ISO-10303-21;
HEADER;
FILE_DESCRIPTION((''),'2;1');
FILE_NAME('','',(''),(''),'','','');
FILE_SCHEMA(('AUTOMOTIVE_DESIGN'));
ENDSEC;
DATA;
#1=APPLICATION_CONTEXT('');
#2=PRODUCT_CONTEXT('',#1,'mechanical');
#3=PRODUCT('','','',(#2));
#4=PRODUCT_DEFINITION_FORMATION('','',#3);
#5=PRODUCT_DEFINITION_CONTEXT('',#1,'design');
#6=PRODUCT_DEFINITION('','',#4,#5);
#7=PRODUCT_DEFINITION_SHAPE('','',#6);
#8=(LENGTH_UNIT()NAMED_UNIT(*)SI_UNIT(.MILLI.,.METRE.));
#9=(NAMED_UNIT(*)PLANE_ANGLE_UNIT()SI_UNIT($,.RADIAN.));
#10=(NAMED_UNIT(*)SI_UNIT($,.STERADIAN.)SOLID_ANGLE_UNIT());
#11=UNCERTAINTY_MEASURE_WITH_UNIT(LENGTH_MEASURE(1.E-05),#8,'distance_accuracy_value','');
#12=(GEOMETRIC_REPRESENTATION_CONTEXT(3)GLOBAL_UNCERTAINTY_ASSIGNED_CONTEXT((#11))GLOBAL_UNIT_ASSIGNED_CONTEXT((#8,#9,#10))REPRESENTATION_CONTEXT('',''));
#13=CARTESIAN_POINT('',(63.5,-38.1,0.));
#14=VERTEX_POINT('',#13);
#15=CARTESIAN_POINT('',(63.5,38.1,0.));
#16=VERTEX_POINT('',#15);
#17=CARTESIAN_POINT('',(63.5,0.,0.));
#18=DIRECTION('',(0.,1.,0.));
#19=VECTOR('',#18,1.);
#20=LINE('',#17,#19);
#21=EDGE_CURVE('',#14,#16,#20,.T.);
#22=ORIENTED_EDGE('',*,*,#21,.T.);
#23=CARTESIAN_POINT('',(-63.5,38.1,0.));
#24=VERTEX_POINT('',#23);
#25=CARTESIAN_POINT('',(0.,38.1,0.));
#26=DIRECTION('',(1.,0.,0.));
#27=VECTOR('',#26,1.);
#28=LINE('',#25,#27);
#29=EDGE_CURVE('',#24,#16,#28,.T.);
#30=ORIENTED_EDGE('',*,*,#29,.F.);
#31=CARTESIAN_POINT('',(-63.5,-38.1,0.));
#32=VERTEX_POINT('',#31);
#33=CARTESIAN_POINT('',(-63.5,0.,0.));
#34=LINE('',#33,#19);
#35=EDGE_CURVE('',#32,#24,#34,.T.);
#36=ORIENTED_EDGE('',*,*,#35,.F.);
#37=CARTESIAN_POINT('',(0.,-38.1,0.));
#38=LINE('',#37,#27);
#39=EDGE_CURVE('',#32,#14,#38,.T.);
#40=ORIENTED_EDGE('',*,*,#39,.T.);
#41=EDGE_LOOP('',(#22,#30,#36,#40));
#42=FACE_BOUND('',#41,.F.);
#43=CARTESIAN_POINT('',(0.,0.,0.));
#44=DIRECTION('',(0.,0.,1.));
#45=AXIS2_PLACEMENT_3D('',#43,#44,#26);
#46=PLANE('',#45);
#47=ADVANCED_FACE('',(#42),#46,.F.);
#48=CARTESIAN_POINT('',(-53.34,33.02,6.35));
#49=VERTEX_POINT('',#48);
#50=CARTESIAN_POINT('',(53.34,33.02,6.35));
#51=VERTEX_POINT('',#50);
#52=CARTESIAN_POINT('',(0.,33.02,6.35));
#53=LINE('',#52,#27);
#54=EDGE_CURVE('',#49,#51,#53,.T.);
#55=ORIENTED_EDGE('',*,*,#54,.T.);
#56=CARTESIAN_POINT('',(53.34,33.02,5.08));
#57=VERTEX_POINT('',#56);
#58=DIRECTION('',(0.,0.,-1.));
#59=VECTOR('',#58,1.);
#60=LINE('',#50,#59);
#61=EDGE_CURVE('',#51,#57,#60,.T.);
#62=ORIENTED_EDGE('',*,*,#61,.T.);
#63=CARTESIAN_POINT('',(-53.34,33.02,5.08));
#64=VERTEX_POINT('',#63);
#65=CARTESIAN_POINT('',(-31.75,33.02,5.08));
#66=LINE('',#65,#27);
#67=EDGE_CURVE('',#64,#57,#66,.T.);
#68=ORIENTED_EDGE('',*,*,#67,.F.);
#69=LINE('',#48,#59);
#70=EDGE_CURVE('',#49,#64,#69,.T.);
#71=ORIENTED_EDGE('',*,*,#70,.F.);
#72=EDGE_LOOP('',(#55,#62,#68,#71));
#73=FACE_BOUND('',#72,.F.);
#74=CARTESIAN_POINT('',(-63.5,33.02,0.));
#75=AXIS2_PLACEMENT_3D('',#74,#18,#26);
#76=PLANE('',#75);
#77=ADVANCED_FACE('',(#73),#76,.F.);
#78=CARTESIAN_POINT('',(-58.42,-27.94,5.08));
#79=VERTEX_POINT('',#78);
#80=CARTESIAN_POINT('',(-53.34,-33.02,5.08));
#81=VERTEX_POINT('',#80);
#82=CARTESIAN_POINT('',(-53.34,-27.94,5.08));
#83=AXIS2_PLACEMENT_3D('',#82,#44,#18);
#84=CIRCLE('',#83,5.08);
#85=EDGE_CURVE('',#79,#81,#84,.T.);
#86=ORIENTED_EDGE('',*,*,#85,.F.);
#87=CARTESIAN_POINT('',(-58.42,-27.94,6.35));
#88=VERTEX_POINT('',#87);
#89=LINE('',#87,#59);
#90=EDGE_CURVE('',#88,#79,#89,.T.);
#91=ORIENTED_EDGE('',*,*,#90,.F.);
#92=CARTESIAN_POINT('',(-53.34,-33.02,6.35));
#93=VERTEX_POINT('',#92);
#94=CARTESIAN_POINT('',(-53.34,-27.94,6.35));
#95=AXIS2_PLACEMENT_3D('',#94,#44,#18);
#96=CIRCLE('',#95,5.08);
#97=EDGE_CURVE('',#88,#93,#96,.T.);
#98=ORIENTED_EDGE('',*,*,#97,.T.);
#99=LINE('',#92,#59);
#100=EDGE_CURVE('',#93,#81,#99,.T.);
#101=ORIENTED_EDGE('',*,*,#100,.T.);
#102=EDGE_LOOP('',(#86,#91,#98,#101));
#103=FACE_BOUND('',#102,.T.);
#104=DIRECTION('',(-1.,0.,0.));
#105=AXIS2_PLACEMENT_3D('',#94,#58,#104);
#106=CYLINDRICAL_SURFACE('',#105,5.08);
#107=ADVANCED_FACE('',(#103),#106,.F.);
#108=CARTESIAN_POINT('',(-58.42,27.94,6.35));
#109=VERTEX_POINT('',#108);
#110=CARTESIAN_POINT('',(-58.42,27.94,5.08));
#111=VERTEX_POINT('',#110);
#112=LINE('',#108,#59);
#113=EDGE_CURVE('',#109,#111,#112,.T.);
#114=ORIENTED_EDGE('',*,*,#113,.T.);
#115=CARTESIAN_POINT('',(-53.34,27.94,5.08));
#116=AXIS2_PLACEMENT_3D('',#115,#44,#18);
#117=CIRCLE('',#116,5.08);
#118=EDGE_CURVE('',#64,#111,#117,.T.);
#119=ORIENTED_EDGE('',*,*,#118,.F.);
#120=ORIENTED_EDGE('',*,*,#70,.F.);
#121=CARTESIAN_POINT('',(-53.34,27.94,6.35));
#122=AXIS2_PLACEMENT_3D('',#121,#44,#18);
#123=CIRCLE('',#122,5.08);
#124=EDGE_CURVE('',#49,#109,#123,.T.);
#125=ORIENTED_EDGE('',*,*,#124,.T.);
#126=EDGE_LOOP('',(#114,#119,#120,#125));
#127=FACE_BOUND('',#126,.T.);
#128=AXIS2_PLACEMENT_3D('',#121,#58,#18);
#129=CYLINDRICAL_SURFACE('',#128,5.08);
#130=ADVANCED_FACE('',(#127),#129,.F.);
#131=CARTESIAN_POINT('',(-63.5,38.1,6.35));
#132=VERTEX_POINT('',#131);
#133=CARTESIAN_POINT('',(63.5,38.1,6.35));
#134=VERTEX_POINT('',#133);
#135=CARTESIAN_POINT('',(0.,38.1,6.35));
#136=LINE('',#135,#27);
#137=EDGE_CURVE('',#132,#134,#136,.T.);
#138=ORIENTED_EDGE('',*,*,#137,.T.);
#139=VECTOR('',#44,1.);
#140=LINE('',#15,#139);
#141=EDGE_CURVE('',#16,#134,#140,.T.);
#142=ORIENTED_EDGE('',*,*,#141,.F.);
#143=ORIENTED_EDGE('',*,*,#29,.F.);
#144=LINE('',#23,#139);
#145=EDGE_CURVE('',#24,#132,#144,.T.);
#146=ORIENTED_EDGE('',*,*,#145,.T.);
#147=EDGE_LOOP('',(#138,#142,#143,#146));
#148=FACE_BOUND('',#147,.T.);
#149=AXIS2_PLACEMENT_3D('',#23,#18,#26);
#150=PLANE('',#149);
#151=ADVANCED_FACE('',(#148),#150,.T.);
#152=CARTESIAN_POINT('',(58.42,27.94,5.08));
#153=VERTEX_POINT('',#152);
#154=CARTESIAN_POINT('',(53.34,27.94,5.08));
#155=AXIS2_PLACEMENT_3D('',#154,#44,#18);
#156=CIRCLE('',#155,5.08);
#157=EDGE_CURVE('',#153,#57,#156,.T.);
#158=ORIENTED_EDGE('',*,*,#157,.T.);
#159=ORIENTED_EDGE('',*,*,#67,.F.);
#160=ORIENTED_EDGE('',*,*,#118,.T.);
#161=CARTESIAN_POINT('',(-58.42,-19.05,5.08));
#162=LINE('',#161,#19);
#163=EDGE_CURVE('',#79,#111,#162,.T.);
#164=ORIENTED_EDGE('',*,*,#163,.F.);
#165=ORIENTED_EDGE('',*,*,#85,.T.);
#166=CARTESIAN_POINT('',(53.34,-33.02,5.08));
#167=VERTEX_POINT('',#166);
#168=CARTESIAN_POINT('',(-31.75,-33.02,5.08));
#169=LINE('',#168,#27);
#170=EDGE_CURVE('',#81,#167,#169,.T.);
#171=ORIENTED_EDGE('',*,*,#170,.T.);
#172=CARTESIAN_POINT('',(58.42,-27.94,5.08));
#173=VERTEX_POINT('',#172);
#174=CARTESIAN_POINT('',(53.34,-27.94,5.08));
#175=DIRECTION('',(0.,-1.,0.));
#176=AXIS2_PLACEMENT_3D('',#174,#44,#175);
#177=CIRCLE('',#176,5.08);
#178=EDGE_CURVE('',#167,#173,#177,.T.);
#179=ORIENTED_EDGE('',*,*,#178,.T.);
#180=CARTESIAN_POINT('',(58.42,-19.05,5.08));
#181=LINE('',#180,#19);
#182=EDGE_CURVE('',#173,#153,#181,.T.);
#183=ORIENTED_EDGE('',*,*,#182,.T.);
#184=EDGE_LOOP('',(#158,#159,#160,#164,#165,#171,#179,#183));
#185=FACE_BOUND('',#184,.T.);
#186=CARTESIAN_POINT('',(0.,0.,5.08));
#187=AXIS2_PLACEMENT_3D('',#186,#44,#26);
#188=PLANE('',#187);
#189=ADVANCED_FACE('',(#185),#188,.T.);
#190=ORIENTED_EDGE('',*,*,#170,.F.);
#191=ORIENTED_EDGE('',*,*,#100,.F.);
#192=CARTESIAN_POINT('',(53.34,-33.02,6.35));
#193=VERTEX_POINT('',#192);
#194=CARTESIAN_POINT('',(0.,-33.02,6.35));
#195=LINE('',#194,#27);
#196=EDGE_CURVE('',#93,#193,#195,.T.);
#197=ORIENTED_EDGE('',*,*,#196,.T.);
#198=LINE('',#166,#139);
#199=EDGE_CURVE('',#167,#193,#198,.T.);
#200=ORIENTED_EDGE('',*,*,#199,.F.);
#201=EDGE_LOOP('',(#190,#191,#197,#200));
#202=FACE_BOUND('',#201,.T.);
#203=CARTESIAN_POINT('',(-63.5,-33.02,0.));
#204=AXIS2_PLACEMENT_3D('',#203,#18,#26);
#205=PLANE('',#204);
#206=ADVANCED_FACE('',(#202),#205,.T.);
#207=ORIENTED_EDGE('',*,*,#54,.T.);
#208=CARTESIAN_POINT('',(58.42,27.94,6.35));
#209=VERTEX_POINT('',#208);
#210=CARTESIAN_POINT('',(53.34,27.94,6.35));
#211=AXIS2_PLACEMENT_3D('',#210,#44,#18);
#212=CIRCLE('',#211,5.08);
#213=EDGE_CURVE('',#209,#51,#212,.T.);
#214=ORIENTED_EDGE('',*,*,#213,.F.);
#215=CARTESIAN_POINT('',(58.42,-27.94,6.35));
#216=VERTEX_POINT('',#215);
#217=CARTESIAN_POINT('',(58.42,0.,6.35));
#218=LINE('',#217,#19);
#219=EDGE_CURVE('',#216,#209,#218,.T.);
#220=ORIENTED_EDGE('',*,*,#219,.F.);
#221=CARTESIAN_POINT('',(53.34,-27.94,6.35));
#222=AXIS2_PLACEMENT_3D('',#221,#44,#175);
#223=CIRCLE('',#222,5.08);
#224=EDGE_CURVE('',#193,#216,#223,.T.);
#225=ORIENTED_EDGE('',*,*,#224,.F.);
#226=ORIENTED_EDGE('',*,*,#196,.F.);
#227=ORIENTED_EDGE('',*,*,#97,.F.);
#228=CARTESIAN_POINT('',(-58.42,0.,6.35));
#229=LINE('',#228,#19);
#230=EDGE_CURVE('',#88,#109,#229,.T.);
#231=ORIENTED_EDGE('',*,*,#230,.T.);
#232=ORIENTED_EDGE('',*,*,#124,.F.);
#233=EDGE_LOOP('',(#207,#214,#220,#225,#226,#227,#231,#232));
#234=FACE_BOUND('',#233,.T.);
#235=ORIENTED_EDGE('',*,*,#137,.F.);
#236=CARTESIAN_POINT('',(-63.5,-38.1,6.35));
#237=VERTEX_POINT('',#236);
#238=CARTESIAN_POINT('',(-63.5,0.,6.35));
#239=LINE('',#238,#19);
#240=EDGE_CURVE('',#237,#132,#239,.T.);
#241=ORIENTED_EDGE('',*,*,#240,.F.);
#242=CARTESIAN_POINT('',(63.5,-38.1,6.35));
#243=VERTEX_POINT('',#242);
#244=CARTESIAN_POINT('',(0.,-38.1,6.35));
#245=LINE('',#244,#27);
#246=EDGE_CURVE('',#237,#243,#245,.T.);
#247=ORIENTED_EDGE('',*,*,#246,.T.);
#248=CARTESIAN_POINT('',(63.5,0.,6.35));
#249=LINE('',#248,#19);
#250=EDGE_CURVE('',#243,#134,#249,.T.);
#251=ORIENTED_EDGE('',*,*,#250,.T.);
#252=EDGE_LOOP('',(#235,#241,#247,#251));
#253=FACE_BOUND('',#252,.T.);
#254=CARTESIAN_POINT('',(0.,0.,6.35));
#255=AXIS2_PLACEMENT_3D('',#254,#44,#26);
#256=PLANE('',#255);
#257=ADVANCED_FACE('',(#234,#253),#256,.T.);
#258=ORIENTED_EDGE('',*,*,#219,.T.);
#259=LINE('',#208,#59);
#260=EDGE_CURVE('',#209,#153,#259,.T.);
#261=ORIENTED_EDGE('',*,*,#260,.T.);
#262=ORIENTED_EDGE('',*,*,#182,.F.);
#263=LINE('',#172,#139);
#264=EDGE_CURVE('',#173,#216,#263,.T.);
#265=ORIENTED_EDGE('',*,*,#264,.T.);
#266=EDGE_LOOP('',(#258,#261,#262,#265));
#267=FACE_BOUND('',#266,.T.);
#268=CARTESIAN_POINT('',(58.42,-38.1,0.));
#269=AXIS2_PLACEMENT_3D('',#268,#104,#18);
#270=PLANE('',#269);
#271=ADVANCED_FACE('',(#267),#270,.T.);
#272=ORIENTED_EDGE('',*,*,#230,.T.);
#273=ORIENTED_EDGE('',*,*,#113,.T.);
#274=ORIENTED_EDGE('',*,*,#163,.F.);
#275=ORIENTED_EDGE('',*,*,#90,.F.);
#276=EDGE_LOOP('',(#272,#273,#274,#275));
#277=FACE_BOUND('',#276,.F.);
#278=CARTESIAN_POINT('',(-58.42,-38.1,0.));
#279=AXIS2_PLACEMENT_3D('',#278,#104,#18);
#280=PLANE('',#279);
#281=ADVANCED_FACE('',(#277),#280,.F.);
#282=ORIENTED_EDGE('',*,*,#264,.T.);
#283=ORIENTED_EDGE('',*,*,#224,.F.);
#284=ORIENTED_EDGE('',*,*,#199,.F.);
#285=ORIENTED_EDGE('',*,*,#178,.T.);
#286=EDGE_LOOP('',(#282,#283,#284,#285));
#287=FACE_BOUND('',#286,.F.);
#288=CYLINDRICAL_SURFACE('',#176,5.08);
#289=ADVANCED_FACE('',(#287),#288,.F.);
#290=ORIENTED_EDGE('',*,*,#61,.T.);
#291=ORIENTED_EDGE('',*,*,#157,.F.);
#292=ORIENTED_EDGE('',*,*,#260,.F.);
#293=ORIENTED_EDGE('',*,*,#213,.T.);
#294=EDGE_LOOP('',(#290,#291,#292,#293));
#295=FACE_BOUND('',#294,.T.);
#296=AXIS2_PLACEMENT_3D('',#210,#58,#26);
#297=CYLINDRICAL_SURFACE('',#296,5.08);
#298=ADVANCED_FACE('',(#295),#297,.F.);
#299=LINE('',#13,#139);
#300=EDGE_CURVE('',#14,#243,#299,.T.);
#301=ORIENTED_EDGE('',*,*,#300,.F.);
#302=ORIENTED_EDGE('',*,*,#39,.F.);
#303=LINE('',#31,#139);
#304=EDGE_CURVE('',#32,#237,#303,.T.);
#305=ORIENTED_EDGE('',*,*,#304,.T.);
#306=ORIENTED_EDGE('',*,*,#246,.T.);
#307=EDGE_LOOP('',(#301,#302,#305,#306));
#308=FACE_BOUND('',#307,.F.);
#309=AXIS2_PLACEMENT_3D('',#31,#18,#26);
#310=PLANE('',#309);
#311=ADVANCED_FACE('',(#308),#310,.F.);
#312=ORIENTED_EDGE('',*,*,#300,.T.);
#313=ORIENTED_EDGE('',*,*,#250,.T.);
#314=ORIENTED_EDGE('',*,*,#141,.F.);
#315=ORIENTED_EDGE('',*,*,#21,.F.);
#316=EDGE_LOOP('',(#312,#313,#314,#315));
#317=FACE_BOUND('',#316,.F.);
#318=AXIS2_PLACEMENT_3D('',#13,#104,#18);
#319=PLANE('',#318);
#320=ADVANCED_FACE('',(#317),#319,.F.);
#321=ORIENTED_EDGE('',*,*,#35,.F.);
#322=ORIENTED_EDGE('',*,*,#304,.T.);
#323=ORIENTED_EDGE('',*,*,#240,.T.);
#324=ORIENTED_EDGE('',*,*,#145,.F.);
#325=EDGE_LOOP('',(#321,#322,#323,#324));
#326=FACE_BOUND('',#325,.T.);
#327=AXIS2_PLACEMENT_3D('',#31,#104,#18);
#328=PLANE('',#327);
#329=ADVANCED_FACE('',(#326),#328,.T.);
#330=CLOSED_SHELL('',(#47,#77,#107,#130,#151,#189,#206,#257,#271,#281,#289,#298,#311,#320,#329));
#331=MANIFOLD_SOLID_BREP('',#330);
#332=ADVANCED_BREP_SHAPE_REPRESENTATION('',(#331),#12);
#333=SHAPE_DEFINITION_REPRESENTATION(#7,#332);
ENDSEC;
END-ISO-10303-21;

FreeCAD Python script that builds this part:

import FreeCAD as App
import Part
import Sketcher
Q = App.Units.Quantity


def edges_at(feature, points):
    """Names of the edges that pass closest to the given points."""
    edges = feature.Shape.Edges
    near = lambda p: min(range(len(edges)), key=lambda i: edges[i].distToShape(Part.Vertex(*p))[0])
    return sorted({f"Edge{near(p) + 1}" for p in points})


def faces_at(feature, points):
    """Names of the faces that lie closest to the given points."""
    faces = feature.Shape.Faces
    near = lambda p: min(range(len(faces)), key=lambda i: faces[i].distToShape(Part.Vertex(*p))[0])
    return sorted({f"Face{near(p) + 1}" for p in points})

doc = App.newDocument("Part")
params = doc.addObject("Spreadsheet::Sheet", "Params")
for row, (alias, value) in enumerate([
    ("sketch1_width", "5 in"),
    ("sketch1_height", "3 in"),
    ("pad1_length", "0.25 in"),
    ("thickness_wall", "0.2 in"),
    ("fillet_radius", "0.2 in"),
    ("fillet2_radius", "0.2 in"),
    ("fillet3_radius", "0.2 in"),
    ("fillet4_radius", "0.2 in"),
], start=1):
    params.set(f"A{row}", alias)
    params.set(f"B{row}", "=" + value)
    params.setAlias(f"B{row}", alias)

body = doc.addObject("PartDesign::Body", "Body")

# Sketch on XY plane
sketch1 = doc.addObject("Sketcher::SketchObject", "Sketch")
body.addObject(sketch1)
sketch1.AttachmentSupport = (doc.XY_Plane, [""])
sketch1.MapMode = "FlatFace"
sketch1.addGeometry(Part.LineSegment(App.Vector(-63.5, 38.1, 0), App.Vector(-63.5, -38.1, 0)), False)
sketch1.addGeometry(Part.LineSegment(App.Vector(-63.5, -38.1, 0), App.Vector(63.5, -38.1, 0)), False)
sketch1.addGeometry(Part.LineSegment(App.Vector(63.5, -38.1, 0), App.Vector(63.5, 38.1, 0)), False)
sketch1.addGeometry(Part.LineSegment(App.Vector(63.5, 38.1, 0), App.Vector(-63.5, 38.1, 0)), False)
sketch1.addConstraint(Sketcher.Constraint("Coincident", 0, 2, 1, 1))
sketch1.addConstraint(Sketcher.Constraint("Coincident", 1, 2, 2, 1))
sketch1.addConstraint(Sketcher.Constraint("Coincident", 2, 2, 3, 1))
sketch1.addConstraint(Sketcher.Constraint("Coincident", 3, 2, 0, 1))
sketch1.addConstraint(Sketcher.Constraint("Vertical", 0))
sketch1.addConstraint(Sketcher.Constraint("Horizontal", 1))
sketch1.addConstraint(Sketcher.Constraint("Vertical", 2))
sketch1.addConstraint(Sketcher.Constraint("Horizontal", 3))
sketch1.addConstraint(Sketcher.Constraint("Symmetric", 0, 2, 2, 2, -1, 1))
sketch1.addConstraint(Sketcher.Constraint("DistanceX", 1, 1, 1, 2, Q("5 in")))
sketch1.addConstraint(Sketcher.Constraint("DistanceY", 0, 2, 0, 1, Q("3 in")))
sketch1.setExpression("Constraints[9]", "Params.sketch1_width")
sketch1.setExpression("Constraints[10]", "Params.sketch1_height")
pad1 = doc.addObject("PartDesign::Pad", "Pad")
body.addObject(pad1)
pad1.Profile = sketch1
pad1.setExpression("Length", "Params.pad1_length")
doc.recompute()

thickness = doc.addObject("PartDesign::Thickness", "Thickness")
body.addObject(thickness)
thickness.Base = (pad1, faces_at(pad1, [(0, 0, 6.35)]))
thickness.setExpression("Value", "Params.thickness_wall")
thickness.Reversed = True
thickness.Join = "Arc"
doc.recompute()

fillet = doc.addObject("PartDesign::Fillet", "Fillet")
body.addObject(fillet)
fillet.Base = (thickness, edges_at(thickness, [(58.42, 33.02, 5.715)]))
fillet.setExpression("Radius", "Params.fillet_radius")
doc.recompute()

fillet2 = doc.addObject("PartDesign::Fillet", "Fillet001")
body.addObject(fillet2)
fillet2.Base = (fillet, edges_at(fillet, [(-58.42, 33.02, 5.715)]))
fillet2.setExpression("Radius", "Params.fillet2_radius")
doc.recompute()

fillet3 = doc.addObject("PartDesign::Fillet", "Fillet002")
body.addObject(fillet3)
fillet3.Base = (fillet2, edges_at(fillet2, [(-58.42, -33.02, 5.715)]))
fillet3.setExpression("Radius", "Params.fillet3_radius")
doc.recompute()

fillet4 = doc.addObject("PartDesign::Fillet", "Fillet003")
body.addObject(fillet4)
fillet4.Base = (fillet3, edges_at(fillet3, [(58.42, -33.02, 5.715)]))
fillet4.setExpression("Radius", "Params.fillet4_radius")

doc.recompute()
